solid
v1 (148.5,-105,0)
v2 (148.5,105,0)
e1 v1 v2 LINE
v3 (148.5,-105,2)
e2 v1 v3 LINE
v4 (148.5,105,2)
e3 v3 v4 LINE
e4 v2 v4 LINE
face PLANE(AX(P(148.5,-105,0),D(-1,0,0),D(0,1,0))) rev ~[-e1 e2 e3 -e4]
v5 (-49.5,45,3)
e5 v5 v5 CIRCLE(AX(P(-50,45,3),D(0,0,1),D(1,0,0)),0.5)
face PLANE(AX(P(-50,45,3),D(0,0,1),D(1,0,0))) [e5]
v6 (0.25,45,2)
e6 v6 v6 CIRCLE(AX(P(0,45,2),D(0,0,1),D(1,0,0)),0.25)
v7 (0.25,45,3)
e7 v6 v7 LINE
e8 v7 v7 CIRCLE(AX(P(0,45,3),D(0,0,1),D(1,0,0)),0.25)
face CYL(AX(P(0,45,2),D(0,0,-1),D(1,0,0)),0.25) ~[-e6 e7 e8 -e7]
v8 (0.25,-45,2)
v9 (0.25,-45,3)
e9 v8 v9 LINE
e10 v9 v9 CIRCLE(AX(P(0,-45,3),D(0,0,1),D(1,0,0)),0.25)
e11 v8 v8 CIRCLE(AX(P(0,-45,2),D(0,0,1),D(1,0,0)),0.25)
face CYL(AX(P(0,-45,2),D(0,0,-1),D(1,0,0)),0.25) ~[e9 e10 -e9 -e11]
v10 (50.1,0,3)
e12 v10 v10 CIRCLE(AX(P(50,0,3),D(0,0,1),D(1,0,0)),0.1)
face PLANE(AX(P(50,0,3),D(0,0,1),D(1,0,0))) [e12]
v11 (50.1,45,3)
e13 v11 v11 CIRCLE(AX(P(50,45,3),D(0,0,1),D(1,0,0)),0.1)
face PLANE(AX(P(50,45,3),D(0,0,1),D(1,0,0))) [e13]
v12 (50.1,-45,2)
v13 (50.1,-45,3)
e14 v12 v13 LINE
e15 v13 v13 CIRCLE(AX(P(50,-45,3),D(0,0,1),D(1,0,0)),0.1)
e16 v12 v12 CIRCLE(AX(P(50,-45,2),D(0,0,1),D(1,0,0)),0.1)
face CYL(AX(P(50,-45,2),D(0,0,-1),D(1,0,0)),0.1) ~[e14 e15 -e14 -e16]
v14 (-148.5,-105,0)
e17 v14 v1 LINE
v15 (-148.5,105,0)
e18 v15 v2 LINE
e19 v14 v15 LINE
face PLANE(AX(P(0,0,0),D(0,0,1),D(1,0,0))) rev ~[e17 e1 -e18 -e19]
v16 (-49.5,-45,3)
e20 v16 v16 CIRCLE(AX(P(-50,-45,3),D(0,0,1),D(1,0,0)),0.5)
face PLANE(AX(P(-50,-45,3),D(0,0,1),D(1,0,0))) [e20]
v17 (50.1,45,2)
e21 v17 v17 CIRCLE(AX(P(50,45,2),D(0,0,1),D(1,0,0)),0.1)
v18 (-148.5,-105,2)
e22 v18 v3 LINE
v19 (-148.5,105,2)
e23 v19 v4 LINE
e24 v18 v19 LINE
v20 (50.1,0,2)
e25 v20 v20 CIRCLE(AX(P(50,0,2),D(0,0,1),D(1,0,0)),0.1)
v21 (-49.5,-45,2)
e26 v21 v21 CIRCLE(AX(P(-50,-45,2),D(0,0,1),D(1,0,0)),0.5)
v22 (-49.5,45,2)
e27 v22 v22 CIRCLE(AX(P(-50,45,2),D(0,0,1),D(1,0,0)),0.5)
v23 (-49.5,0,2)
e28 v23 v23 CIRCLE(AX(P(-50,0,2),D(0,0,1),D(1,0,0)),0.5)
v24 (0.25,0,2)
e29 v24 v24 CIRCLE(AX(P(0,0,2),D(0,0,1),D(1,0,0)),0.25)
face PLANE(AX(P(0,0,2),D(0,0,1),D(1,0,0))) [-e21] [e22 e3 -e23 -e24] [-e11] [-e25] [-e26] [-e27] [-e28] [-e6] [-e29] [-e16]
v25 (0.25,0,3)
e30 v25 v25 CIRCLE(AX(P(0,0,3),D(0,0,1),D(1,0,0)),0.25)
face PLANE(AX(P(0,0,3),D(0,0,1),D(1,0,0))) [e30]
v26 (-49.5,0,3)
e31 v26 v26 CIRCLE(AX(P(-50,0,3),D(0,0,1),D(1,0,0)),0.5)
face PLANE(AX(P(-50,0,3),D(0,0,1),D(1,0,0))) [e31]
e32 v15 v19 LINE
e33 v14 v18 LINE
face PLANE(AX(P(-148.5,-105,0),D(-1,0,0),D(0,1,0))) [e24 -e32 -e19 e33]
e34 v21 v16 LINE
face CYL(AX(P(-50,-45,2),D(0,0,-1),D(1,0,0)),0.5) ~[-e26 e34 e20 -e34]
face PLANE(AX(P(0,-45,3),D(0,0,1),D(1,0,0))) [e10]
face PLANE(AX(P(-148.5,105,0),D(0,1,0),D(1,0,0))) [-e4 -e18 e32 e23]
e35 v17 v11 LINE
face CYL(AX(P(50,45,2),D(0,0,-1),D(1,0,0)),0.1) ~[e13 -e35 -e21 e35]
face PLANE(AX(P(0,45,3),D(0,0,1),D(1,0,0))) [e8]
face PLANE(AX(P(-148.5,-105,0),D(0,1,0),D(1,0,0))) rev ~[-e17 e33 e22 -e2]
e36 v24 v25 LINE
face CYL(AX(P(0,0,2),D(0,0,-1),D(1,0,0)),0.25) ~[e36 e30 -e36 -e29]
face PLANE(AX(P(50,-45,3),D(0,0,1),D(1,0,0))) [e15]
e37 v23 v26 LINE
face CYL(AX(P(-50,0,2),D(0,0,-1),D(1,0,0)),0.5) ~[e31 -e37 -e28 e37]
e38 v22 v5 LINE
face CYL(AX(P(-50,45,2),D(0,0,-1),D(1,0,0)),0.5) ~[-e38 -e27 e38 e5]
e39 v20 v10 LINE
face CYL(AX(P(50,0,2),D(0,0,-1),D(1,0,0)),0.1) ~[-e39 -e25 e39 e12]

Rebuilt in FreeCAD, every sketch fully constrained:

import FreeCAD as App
import Part
import Sketcher
from FreeCAD import Vector
Q = App.Units.Quantity


def add_polygon(sketch, points):
    """Adds a closed chain of lines whose ends are joined by coincident constraints."""
    first, n = sketch.GeometryCount, len(points)
    for a, b in zip(points, points[1:] + points[:1]):
        sketch.addGeometry(Part.LineSegment(App.Vector(*a, 0), App.Vector(*b, 0)), False)
    for i in range(n):
        sketch.addConstraint(Sketcher.Constraint("Coincident", first + i, 2, first + (i + 1) % n, 1))

doc = App.newDocument("Part")
body = doc.addObject("PartDesign::Body", "Body")

sketch1 = body.newObject("Sketcher::SketchObject", "Sketch")
sketch1.AttachmentSupport = (doc.getObject("XY_Plane"), [""])
sketch1.MapMode = "FlatFace"
add_polygon(sketch1, [(-148, 105), (-148, -105), (148, -105), (148, 105)])
sketch1.addConstraint(Sketcher.Constraint("Vertical", 0))
sketch1.addConstraint(Sketcher.Constraint("Horizontal", 1))
sketch1.addConstraint(Sketcher.Constraint("Vertical", 2))
sketch1.addConstraint(Sketcher.Constraint("Horizontal", 3))
sketch1.addConstraint(Sketcher.Constraint("Symmetric", 0, 2, 2, 2, -1, 1))
sketch1.addConstraint(Sketcher.Constraint("DistanceX", 1, 1, 1, 2, Q("297 mm")))
sketch1.addConstraint(Sketcher.Constraint("DistanceY", 0, 2, 0, 1, Q("210 mm")))
pad1 = body.newObject("PartDesign::Pad", "Pad")
pad1.Profile = sketch1
pad1.Length = 2

sketch2 = body.newObject("Sketcher::SketchObject", "Sketch001")
sketch2.AttachmentSupport = (doc.getObject("XY_Plane"), [""])
sketch2.MapMode = "FlatFace"
sketch2.AttachmentOffset = App.Placement(Vector(0, 0, 2), App.Rotation())
sketch2.addGeometry(Part.Circle(Vector(50, 45, 0), Vector(0, 0, 1), 0.1), False)
sketch2.addGeometry(Part.Circle(Vector(50, 0, 0), Vector(0, 0, 1), 0.1), False)
sketch2.addGeometry(Part.Circle(Vector(50, -45, 0), Vector(0, 0, 1), 0.1), False)
sketch2.addConstraint(Sketcher.Constraint("Equal", 0, 1))
sketch2.addConstraint(Sketcher.Constraint("Equal", 1, 2))
sketch2.addConstraint(Sketcher.Constraint("Symmetric", 0, 3, 2, 3, -1))
sketch2.addConstraint(Sketcher.Constraint("PointOnObject", 1, 3, -1))
sketch2.addConstraint(Sketcher.Constraint("Vertical", 0, 3, 1, 3))
sketch2.addConstraint(Sketcher.Constraint("Diameter", 0, Q("0.2 mm")))
sketch2.addConstraint(Sketcher.Constraint("DistanceX", -1, 1, 0, 3, Q("50 mm")))
sketch2.addConstraint(Sketcher.Constraint("DistanceY", -1, 1, 0, 3, Q("45 mm")))
pad2 = body.newObject("PartDesign::Pad", "Pad001")
pad2.Profile = sketch2
pad2.Length = 1

sketch3 = body.newObject("Sketcher::SketchObject", "Sketch002")
sketch3.AttachmentSupport = (doc.getObject("XY_Plane"), [""])
sketch3.MapMode = "FlatFace"
sketch3.AttachmentOffset = App.Placement(Vector(0, 0, 2), App.Rotation())
sketch3.addGeometry(Part.Circle(Vector(0, 45, 0), Vector(0, 0, 1), 0.25), False)
sketch3.addGeometry(Part.Circle(Vector(0, 0, 0), Vector(0, 0, 1), 0.25), False)
sketch3.addGeometry(Part.Circle(Vector(0, -45, 0), Vector(0, 0, 1), 0.25), False)
sketch3.addConstraint(Sketcher.Constraint("Coincident", 1, 3, -1, 1))
sketch3.addConstraint(Sketcher.Constraint("Equal", 0, 1))
sketch3.addConstraint(Sketcher.Constraint("Equal", 1, 2))
sketch3.addConstraint(Sketcher.Constraint("Symmetric", 0, 3, 2, 3, -1, 1))
sketch3.addConstraint(Sketcher.Constraint("PointOnObject", 0, 3, -2))
sketch3.addConstraint(Sketcher.Constraint("Diameter", 0, Q("0.5 mm")))
sketch3.addConstraint(Sketcher.Constraint("DistanceY", -1, 1, 0, 3, Q("45 mm")))
pad3 = body.newObject("PartDesign::Pad", "Pad002")
pad3.Profile = sketch3
pad3.Length = 1

sketch4 = body.newObject("Sketcher::SketchObject", "Sketch003")
sketch4.AttachmentSupport = (doc.getObject("XY_Plane"), [""])
sketch4.MapMode = "FlatFace"
sketch4.AttachmentOffset = App.Placement(Vector(0, 0, 2), App.Rotation())
sketch4.addGeometry(Part.Circle(Vector(-50, 45, 0), Vector(0, 0, 1), 0.5), False)
sketch4.addGeometry(Part.Circle(Vector(-50, 0, 0), Vector(0, 0, 1), 0.5), False)
sketch4.addGeometry(Part.Circle(Vector(-50, -45, 0), Vector(0, 0, 1), 0.5), False)
sketch4.addConstraint(Sketcher.Constraint("Equal", 0, 1))
sketch4.addConstraint(Sketcher.Constraint("Equal", 1, 2))
sketch4.addConstraint(Sketcher.Constraint("Symmetric", 0, 3, 2, 3, -1))
sketch4.addConstraint(Sketcher.Constraint("PointOnObject", 1, 3, -1))
sketch4.addConstraint(Sketcher.Constraint("Vertical", 0, 3, 1, 3))
sketch4.addConstraint(Sketcher.Constraint("Diameter", 0, Q("1 mm")))
sketch4.addConstraint(Sketcher.Constraint("DistanceX", 0, 3, -1, 1, Q("50 mm")))
sketch4.addConstraint(Sketcher.Constraint("DistanceY", -1, 1, 0, 3, Q("45 mm")))
pad4 = body.newObject("PartDesign::Pad", "Pad003")
pad4.Profile = sketch4
pad4.Length = 1

doc.recompute()
